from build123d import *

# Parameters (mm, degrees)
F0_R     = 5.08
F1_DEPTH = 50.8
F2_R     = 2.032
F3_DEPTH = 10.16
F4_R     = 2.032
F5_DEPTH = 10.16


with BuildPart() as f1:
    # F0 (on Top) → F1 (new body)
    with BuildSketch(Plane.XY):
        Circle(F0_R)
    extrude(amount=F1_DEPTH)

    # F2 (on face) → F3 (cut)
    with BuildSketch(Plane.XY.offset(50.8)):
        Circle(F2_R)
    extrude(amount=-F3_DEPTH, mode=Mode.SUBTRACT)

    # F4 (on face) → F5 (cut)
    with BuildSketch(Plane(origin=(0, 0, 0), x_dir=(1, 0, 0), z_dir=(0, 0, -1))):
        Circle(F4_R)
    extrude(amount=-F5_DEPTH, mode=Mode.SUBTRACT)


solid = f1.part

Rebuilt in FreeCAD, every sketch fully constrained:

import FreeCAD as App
import Part
import Sketcher

V = App.Vector
Q = App.Units.Quantity

doc = App.newDocument("Part")
body = doc.addObject("PartDesign::Body", "Body")

# Sketch on XY plane
sketch1 = body.newObject("Sketcher::SketchObject", "Sketch")
sketch1.AttachmentSupport = (doc.getObject("XY_Plane"), [""])
sketch1.MapMode = "FlatFace"
sketch1.addGeometry(Part.Circle(V(0, 0, 0), V(0, 0, 1), 5.08), False)
sketch1.addConstraint([
    Sketcher.Constraint("Coincident", 0, 3, -1, 1),
    Sketcher.Constraint("Diameter", 0, Q("0.4 in")),
])
pad1 = body.newObject("PartDesign::Pad", "Pad")
pad1.Profile = sketch1
pad1.Length = Q("2 in")

# Sketch on XY plane
sketch2 = body.newObject("Sketcher::SketchObject", "Sketch001")
sketch2.AttachmentSupport = (doc.getObject("XY_Plane"), [""])
sketch2.MapMode = "FlatFace"
sketch2.AttachmentOffset = App.Placement(V(0, 0, 2 * 25.4), App.Rotation())
sketch2.addGeometry(Part.Circle(V(0, 0, 0), V(0, 0, 1), 2.032), False)
sketch2.addConstraint([
    Sketcher.Constraint("Coincident", 0, 3, -1, 1),
    Sketcher.Constraint("Diameter", 0, Q("0.16 in")),
])
pocket1 = body.newObject("PartDesign::Pocket", "Pocket")
pocket1.Profile = sketch2
pocket1.Length = Q("0.4 in")

# Sketch on XY plane
sketch3 = body.newObject("Sketcher::SketchObject", "Sketch002")
sketch3.AttachmentSupport = (doc.getObject("XY_Plane"), [""])
sketch3.MapMode = "FlatFace"
sketch3.addGeometry(Part.Circle(V(0, 0, 0), V(0, 0, 1), 2.032), False)
sketch3.addConstraint([
    Sketcher.Constraint("Coincident", 0, 3, -1, 1),
    Sketcher.Constraint("Diameter", 0, Q("0.16 in")),
])
pocket2 = body.newObject("PartDesign::Pocket", "Pocket001")
pocket2.Profile = sketch3
pocket2.Length = Q("0.4 in")
pocket2.Reversed = True

doc.recompute()
